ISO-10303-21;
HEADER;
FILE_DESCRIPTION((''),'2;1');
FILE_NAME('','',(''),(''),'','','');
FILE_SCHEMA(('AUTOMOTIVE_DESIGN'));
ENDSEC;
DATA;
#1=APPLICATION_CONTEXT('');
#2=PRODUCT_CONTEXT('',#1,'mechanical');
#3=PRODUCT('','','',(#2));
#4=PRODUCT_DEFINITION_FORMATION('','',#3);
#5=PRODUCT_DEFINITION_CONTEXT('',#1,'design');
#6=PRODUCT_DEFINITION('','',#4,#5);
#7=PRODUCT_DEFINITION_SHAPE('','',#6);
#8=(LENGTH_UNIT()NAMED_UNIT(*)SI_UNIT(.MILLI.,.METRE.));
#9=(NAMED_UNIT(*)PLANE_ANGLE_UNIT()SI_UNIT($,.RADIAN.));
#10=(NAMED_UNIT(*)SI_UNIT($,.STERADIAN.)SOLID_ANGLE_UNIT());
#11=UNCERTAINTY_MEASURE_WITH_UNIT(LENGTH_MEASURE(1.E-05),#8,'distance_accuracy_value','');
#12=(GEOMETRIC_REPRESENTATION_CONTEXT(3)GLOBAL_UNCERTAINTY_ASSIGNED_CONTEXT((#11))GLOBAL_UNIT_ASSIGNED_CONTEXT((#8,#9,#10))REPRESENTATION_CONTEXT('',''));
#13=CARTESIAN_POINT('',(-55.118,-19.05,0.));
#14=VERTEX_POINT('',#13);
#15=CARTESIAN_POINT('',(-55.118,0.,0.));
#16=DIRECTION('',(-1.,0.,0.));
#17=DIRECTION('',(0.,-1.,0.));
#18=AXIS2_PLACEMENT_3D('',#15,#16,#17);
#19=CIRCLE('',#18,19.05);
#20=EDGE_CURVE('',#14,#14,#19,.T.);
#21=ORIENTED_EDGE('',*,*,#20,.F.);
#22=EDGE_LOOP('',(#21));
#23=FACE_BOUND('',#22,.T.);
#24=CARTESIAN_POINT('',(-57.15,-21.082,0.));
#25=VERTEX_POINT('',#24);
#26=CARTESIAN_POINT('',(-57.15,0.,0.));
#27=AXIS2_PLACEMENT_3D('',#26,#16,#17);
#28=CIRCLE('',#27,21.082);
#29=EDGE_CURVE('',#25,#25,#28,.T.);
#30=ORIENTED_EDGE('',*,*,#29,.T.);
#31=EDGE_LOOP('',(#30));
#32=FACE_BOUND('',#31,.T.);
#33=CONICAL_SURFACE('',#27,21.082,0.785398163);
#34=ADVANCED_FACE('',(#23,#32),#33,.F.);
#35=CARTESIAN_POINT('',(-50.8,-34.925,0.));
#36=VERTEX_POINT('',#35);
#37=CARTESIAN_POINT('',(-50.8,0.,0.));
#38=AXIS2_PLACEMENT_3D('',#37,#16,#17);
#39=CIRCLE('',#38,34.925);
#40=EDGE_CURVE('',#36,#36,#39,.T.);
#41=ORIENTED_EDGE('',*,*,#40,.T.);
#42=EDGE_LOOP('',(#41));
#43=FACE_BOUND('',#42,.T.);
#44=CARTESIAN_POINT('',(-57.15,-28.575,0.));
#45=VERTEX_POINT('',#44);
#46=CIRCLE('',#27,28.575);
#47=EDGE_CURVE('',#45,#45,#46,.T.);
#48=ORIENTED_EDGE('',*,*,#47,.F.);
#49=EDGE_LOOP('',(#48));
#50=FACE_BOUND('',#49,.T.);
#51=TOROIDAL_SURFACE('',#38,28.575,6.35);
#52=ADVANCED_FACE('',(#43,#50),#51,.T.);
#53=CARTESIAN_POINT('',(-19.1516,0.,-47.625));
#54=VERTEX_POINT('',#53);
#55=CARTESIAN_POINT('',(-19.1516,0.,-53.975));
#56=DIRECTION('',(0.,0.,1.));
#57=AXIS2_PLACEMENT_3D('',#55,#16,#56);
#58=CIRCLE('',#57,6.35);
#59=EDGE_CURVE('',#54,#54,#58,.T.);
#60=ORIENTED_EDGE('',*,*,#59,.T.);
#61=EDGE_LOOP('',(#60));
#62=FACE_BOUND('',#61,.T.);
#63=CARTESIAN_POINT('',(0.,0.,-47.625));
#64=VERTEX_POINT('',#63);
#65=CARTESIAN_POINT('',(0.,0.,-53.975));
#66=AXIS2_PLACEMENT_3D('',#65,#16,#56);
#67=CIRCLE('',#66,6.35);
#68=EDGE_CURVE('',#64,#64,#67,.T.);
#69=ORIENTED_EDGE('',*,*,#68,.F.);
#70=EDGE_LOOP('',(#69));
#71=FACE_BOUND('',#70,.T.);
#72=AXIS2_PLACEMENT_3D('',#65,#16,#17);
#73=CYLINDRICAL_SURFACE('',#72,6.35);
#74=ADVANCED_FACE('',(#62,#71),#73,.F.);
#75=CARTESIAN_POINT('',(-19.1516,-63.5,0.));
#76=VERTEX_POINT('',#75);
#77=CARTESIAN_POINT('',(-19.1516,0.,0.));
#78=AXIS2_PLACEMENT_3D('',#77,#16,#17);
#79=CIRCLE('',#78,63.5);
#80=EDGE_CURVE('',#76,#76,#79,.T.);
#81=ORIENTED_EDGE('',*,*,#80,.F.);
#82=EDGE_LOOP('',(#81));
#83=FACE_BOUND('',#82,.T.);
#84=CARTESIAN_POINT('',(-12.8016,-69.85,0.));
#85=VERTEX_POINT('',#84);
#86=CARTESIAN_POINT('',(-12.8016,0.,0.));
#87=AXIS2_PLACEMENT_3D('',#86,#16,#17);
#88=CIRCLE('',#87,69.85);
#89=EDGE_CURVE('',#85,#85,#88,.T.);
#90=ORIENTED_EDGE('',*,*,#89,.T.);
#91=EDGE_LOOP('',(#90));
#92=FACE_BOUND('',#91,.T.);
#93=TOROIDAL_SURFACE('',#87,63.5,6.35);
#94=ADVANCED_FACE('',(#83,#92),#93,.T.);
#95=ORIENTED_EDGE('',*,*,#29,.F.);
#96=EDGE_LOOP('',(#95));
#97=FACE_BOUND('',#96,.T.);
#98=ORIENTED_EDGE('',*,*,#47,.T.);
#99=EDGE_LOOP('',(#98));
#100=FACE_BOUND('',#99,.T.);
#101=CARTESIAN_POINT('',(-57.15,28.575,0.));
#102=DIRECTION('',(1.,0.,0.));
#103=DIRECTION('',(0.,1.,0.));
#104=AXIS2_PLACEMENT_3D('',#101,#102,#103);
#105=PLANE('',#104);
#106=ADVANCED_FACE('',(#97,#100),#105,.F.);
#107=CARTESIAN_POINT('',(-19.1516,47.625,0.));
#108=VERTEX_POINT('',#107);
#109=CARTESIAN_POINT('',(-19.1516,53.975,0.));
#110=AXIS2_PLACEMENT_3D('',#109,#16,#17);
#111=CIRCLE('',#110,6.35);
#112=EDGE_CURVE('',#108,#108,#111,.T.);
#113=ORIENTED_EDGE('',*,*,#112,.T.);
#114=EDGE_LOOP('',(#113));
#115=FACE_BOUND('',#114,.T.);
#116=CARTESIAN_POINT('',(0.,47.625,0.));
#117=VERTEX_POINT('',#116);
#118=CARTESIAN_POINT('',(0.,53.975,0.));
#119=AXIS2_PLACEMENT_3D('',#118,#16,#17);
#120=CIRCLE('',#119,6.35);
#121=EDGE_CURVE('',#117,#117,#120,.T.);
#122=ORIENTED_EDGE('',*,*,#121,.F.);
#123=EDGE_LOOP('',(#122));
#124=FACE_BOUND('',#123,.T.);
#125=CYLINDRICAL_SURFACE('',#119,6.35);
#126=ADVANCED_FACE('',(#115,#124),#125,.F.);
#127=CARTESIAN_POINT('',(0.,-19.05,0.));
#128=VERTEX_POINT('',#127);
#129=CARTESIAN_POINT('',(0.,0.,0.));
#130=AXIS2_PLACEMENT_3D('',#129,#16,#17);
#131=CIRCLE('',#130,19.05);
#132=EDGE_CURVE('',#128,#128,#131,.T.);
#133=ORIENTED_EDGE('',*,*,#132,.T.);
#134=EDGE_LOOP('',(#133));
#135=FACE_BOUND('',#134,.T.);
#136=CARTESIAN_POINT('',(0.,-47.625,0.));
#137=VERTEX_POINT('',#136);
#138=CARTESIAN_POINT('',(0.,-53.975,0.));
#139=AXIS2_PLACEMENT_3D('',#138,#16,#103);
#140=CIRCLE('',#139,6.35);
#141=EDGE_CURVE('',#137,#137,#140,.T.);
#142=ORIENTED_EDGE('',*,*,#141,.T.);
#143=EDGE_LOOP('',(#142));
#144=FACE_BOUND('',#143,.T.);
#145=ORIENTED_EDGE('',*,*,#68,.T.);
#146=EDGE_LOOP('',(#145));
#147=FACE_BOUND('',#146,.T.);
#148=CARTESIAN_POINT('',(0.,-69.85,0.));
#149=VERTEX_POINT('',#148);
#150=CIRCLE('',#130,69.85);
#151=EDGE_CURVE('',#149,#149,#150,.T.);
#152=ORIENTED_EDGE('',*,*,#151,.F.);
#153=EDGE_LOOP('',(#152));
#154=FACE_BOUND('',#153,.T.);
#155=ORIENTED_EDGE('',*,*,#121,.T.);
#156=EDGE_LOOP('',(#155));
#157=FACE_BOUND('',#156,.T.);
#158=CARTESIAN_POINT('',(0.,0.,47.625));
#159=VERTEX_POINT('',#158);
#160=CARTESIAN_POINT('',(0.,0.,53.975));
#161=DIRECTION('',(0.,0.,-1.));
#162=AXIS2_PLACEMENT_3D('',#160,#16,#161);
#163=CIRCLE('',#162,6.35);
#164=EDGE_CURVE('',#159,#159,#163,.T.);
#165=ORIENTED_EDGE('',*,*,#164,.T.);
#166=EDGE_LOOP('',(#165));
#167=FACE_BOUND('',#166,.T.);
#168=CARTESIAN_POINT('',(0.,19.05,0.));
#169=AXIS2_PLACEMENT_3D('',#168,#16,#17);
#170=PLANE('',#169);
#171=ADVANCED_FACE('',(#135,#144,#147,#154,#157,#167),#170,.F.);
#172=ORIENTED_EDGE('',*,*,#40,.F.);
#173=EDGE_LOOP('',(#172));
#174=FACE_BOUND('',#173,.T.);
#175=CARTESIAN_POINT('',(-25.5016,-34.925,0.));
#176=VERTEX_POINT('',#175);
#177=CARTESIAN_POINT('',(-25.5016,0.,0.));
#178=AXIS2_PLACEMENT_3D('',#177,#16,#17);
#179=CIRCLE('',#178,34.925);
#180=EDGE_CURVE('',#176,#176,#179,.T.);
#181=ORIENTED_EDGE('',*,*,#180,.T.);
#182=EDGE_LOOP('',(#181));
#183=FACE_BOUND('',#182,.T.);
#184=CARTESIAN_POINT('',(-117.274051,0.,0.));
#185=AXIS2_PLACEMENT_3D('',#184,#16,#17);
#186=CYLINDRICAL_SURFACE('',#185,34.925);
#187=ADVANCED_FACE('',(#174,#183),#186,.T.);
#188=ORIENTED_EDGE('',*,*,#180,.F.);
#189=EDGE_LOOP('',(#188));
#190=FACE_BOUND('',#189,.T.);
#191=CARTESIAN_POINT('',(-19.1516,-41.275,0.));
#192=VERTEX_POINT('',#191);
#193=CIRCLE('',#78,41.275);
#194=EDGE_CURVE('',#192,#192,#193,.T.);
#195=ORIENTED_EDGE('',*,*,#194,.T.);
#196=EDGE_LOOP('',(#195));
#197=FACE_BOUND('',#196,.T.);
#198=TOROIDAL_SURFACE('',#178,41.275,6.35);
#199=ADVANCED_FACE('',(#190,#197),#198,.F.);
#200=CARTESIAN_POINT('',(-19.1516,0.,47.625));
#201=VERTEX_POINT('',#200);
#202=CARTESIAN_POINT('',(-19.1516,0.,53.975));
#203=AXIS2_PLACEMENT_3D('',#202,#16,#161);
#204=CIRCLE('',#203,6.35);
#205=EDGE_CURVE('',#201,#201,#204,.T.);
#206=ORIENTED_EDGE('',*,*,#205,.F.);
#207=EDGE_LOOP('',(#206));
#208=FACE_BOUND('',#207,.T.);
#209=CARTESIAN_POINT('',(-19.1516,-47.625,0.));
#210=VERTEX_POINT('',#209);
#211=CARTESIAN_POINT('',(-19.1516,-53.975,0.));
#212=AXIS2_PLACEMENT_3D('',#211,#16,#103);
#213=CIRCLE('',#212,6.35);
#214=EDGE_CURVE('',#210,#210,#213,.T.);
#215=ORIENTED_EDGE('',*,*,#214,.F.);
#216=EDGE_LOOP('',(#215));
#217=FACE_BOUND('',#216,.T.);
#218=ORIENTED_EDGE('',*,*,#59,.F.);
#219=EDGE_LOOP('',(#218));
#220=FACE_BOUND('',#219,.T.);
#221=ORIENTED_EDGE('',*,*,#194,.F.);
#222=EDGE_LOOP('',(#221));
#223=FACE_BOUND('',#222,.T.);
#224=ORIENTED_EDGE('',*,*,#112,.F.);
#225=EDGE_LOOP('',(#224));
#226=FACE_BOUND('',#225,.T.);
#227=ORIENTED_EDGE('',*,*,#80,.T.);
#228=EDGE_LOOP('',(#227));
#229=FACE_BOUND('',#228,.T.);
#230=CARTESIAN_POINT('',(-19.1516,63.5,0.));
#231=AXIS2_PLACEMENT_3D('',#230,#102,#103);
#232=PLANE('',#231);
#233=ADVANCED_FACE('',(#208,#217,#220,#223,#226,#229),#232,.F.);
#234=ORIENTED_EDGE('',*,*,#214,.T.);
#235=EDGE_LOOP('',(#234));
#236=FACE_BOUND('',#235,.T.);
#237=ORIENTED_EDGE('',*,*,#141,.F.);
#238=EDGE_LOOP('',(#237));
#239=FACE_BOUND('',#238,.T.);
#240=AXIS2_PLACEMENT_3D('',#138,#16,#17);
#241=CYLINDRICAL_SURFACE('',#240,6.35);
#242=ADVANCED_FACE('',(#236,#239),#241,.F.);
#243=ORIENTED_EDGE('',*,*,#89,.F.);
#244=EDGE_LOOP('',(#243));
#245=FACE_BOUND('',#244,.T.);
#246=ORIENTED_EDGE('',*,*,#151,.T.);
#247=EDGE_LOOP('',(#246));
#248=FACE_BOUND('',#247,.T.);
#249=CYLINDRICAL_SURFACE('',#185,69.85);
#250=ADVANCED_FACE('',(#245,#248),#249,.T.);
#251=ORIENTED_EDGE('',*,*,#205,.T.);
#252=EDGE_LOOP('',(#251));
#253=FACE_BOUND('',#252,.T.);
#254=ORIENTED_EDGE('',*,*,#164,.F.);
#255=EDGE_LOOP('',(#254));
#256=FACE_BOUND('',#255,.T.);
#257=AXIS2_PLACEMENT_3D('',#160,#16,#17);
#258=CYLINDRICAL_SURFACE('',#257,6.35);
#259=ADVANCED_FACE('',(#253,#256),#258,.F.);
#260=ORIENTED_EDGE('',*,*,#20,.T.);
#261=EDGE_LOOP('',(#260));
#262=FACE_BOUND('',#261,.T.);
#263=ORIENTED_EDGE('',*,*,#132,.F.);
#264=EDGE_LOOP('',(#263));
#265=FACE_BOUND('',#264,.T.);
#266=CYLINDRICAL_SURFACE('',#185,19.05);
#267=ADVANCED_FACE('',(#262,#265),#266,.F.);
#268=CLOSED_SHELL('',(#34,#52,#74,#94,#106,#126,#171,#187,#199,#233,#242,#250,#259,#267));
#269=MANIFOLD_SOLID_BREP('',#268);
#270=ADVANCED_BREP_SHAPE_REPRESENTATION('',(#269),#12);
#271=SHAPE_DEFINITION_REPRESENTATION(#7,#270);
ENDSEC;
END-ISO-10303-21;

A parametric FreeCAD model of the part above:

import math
import FreeCAD as App
import Part
import Sketcher
from FreeCAD import Vector
Q = App.Units.Quantity

doc = App.newDocument("Part")
body = doc.addObject("PartDesign::Body", "Body")

# Sketch on XY plane
sketch1 = body.newObject("Sketcher::SketchObject", "Sketch")
sketch1.AttachmentSupport = (doc.getObject("XY_Plane"), [""])
sketch1.MapMode = "FlatFace"
sketch1.addGeometry([
    Part.LineSegment(Vector(-55.1, 19.1, 0), Vector(0, 19.1, 0)),  # 0
    Part.LineSegment(Vector(0, 19.1, 0), Vector(0, 69.8, 0)),  # 1
    Part.LineSegment(Vector(0, 69.8, 0), Vector(-12.8, 69.8, 0)),  # 2
    Part.ArcOfCircle(Part.Circle(Vector(-12.8, 63.5, 0), Vector(0, 0, 1), 6.3), math.radians(90), math.radians(180)),  # 3
    Part.LineSegment(Vector(-19.2, 63.5, 0), Vector(-19.2, 41.3, 0)),  # 4
    Part.ArcOfCircle(Part.Circle(Vector(-25.5, 41.3, 0), Vector(0, 0, 1), 6.3), math.radians(-90), math.radians(0)),  # 5
    Part.LineSegment(Vector(-25.5, 34.9, 0), Vector(-50.8, 34.9, 0)),  # 6
    Part.ArcOfCircle(Part.Circle(Vector(-50.8, 28.6, 0), Vector(0, 0, 1), 6.3), math.radians(90), math.radians(180)),  # 7
    Part.LineSegment(Vector(-57.1, 28.6, 0), Vector(-57.1, 21.1, 0)),  # 8
    Part.LineSegment(Vector(-57.1, 21.1, 0), Vector(-55.1, 19.1, 0)),  # 9
], False)
sketch1.addConstraint([
    Sketcher.Constraint("Coincident", 0, 2, 1, 1),
    Sketcher.Constraint("Coincident", 1, 2, 2, 1),
    Sketcher.Constraint("Tangent", 2, 2, 3, 1),
    Sketcher.Constraint("Tangent", 3, 2, 4, 1),
    Sketcher.Constraint("Tangent", 4, 2, 5, 2),
    Sketcher.Constraint("Tangent", 5, 1, 6, 1),
    Sketcher.Constraint("Tangent", 6, 2, 7, 1),
    Sketcher.Constraint("Tangent", 7, 2, 8, 1),
    Sketcher.Constraint("Coincident", 8, 2, 9, 1),
    Sketcher.Constraint("Coincident", 9, 2, 0, 1),
    Sketcher.Constraint("Horizontal", 0),
    Sketcher.Constraint("Vertical", 1),
    Sketcher.Constraint("Horizontal", 2),
    Sketcher.Constraint("Vertical", 4),
    Sketcher.Constraint("Horizontal", 6),
    Sketcher.Constraint("Vertical", 8),
    Sketcher.Constraint("Equal", 3, 5),
    Sketcher.Constraint("Equal", 5, 7),
    Sketcher.Constraint("PointOnObject", 0, 2, -2),
    Sketcher.Constraint("DistanceY", 1, 1, 1, 2, Q("2 in")),
    Sketcher.Constraint("Radius", 3, Q("0.25 in")),
    Sketcher.Constraint("DistanceX", 7, 3, -1, 1, Q("2 in")),
    Sketcher.Constraint("Angle", 9, Q("-45 deg")),
    Sketcher.Constraint("DistanceX", 0, 1, 0, 2, Q("2.17 in")),
    Sketcher.Constraint("DistanceY", -1, 1, 3, 3, Q("2.5 in")),
    Sketcher.Constraint("DistanceX", 2, 2, 2, 1, Q("0.504 in")),
    Sketcher.Constraint("DistanceY", 4, 2, 4, 1, Q("0.875 in")),
])
revolution = body.newObject("PartDesign::Revolution", "Revolution")
revolution.Profile = sketch1
revolution.ReferenceAxis = (sketch1, ["H_Axis"])
revolution.Angle = 360

# Sketch on YZ plane
sketch2 = body.newObject("Sketcher::SketchObject", "Sketch001")
sketch2.AttachmentSupport = (doc.getObject("YZ_Plane"), [""])
sketch2.MapMode = "FlatFace"
sketch2.AttachmentOffset = App.Placement(Vector(0, 0, -0.754 * 25.4), App.Rotation())
sketch2.addGeometry(Part.Circle(Vector(54, 0, 0), Vector(0, 0, 1), 6), False)
sketch2.addConstraint([
    Sketcher.Constraint("PointOnObject", 0, 3, -1),
    Sketcher.Constraint("Diameter", 0, Q("0.5 in")),
    Sketcher.Constraint("DistanceX", -1, 1, 0, 3, Q("2.125 in")),
])
pocket1 = body.newObject("PartDesign::Pocket", "Pocket")
pocket1.Profile = sketch2
pocket1.Type = "ThroughAll"
pocket1.Reversed = True
doc.recompute()

polarpattern = body.newObject("PartDesign::PolarPattern", "PolarPattern")
polarpattern.Originals = [pocket1]
polarpattern.Axis = (doc.getObject("X_Axis"), [""])
polarpattern.Angle = 360
polarpattern.Occurrences = 4
body.Tip = polarpattern

doc.recompute()
